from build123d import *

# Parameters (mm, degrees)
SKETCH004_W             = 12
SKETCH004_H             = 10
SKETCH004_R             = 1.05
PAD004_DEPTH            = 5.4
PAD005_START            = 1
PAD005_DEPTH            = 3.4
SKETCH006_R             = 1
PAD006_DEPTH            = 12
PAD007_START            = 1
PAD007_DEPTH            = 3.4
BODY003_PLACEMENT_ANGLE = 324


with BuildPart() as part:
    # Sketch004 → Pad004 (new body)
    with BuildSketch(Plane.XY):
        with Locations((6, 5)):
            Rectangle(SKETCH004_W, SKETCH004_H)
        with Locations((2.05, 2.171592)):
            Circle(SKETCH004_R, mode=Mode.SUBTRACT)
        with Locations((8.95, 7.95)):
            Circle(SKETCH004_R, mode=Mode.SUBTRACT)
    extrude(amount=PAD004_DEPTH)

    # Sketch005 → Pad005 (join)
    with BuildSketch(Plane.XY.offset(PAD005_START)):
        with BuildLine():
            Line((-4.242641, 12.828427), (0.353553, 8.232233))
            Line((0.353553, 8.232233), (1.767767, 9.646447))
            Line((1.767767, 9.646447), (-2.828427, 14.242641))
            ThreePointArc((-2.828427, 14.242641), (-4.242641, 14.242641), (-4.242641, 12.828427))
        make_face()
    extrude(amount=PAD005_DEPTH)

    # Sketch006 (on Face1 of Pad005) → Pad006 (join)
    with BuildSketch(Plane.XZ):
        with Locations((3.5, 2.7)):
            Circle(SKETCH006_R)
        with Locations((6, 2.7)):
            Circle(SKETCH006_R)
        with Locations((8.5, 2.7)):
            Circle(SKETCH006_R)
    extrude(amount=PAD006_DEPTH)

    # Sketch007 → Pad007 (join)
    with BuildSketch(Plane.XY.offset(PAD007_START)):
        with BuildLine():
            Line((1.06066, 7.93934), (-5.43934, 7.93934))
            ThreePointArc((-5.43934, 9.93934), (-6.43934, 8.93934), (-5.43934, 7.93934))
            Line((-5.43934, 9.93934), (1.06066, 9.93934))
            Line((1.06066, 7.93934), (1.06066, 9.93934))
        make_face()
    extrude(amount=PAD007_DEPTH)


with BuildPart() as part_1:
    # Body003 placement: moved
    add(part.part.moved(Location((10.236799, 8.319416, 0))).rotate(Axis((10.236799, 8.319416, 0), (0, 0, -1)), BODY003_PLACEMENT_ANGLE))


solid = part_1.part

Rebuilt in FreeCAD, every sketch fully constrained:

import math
import FreeCAD as App
import Part
import Sketcher
from FreeCAD import Vector
Q = App.Units.Quantity

doc = App.newDocument("Part")
body = doc.addObject("PartDesign::Body", "Body")

sketch1 = body.newObject("Sketcher::SketchObject", "Sketch")
sketch1.AttachmentSupport = (doc.getObject("XY_Plane"), [""])
sketch1.MapMode = "FlatFace"
sketch1.addGeometry([
    Part.LineSegment(Vector(0, 10, 0), Vector(0, 0, 0)),
    Part.LineSegment(Vector(0, 0, 0), Vector(12, 0, 0)),
    Part.LineSegment(Vector(12, 0, 0), Vector(12, 10, 0)),
    Part.LineSegment(Vector(12, 10, 0), Vector(0, 10, 0)),
    Part.Circle(Vector(2.05, 2.171592, 0), Vector(0, 0, 1), 1.05),
    Part.Circle(Vector(8.95, 7.95, 0), Vector(0, 0, 1), 1.05),
], False)
sketch1.addConstraint([
    Sketcher.Constraint("Coincident", 0, 2, 1, 1),
    Sketcher.Constraint("Coincident", 1, 2, 2, 1),
    Sketcher.Constraint("Coincident", 2, 2, 3, 1),
    Sketcher.Constraint("Coincident", 3, 2, 0, 1),
    Sketcher.Constraint("Vertical", 0),
    Sketcher.Constraint("Horizontal", 1),
    Sketcher.Constraint("Vertical", 2),
    Sketcher.Constraint("Horizontal", 3),
    Sketcher.Constraint("Coincident", 0, 2, -1, 1),
    Sketcher.Constraint("Equal", 4, 5),
    Sketcher.Constraint("Diameter", 4, Q("2.1 mm")),
    Sketcher.Constraint("DistanceX", 1, 1, 1, 2, Q("12 mm")),
    Sketcher.Constraint("DistanceY", 0, 2, 0, 1, Q("10 mm")),
    Sketcher.Constraint("DistanceX", 4, 3, 5, 3, Q("6.9 mm")),
    Sketcher.Constraint("DistanceX", -1, 1, 4, 3, Q("2.05 mm")),
    Sketcher.Constraint("DistanceY", -1, 1, 5, 3, Q("7.95 mm")),
    Sketcher.Constraint("DistanceY", -1, 1, 4, 3, Q("2.171592 mm")),
])
pad1 = body.newObject("PartDesign::Pad", "Pad")
pad1.Profile = sketch1
pad1.Length = 5.4

sketch2 = body.newObject("Sketcher::SketchObject", "Sketch001")
sketch2.AttachmentSupport = (doc.getObject("XY_Plane"), [""])
sketch2.MapMode = "FlatFace"
sketch2.AttachmentOffset = App.Placement(Vector(0, 0, 1), App.Rotation())
sketch2.addGeometry([
    Part.LineSegment(Vector(-4.242641, 12.828427, 0), Vector(0.353553, 8.232233, 0)),
    Part.LineSegment(Vector(0.353553, 8.232233, 0), Vector(1.767767, 9.646447, 0)),
    Part.LineSegment(Vector(1.767767, 9.646447, 0), Vector(-2.828427, 14.242641, 0)),
    Part.ArcOfCircle(Part.Circle(Vector(-3.535534, 13.535534, 0), Vector(0, 0, 1), 1), math.radians(45), math.radians(225)),
], False)
sketch2.addConstraint([
    Sketcher.Constraint("Coincident", 0, 2, 1, 1),
    Sketcher.Constraint("Coincident", 1, 2, 2, 1),
    Sketcher.Constraint("Tangent", 2, 2, 3, 1),
    Sketcher.Constraint("Tangent", 3, 2, 0, 1),
    Sketcher.Constraint("Perpendicular", 0, 1),
    Sketcher.Constraint("Perpendicular", 1, 2),
    Sketcher.Constraint("Radius", 3, Q("1 mm")),
    Sketcher.Constraint("Angle", 0, Q("-45 deg")),
    Sketcher.Constraint("Distance", 0, Q("6.5 mm")),
    Sketcher.Constraint("DistanceY", -1, 1, 2, 2, Q("14.242641 mm")),
    Sketcher.Constraint("DistanceX", 3, 2, -1, 1, Q("4.242641 mm")),
])
pad2 = body.newObject("PartDesign::Pad", "Pad001")
pad2.Profile = sketch2
pad2.Length = 3.4

sketch3 = body.newObject("Sketcher::SketchObject", "Sketch002")
sketch3.AttachmentSupport = (doc.getObject("XZ_Plane"), [""])
sketch3.MapMode = "FlatFace"
sketch3.addGeometry([
    Part.Circle(Vector(3.5, 2.7, 0), Vector(0, 0, 1), 1),
    Part.Circle(Vector(6, 2.7, 0), Vector(0, 0, 1), 1),
    Part.Circle(Vector(8.5, 2.7, 0), Vector(0, 0, 1), 1),
], False)
sketch3.addConstraint([
    Sketcher.Constraint("Equal", 0, 1),
    Sketcher.Constraint("Equal", 1, 2),
    Sketcher.Constraint("Horizontal", 0, 3, 1, 3),
    Sketcher.Constraint("Horizontal", 1, 3, 2, 3),
    Sketcher.Constraint("Diameter", 0, Q("2 mm")),
    Sketcher.Constraint("DistanceX", -1, 1, 1, 3, Q("6 mm")),
    Sketcher.Constraint("DistanceX", 0, 3, 2, 3, Q("5 mm")),
    Sketcher.Constraint("DistanceX", -1, 1, 0, 3, Q("3.5 mm")),
    Sketcher.Constraint("DistanceY", -1, 1, 0, 3, Q("2.7 mm")),
])
pad3 = body.newObject("PartDesign::Pad", "Pad002")
pad3.Profile = sketch3
pad3.Length = 12

sketch4 = body.newObject("Sketcher::SketchObject", "Sketch003")
sketch4.AttachmentSupport = (doc.getObject("XY_Plane"), [""])
sketch4.MapMode = "FlatFace"
sketch4.AttachmentOffset = App.Placement(Vector(0, 0, 1), App.Rotation())
sketch4.addGeometry([
    Part.LineSegment(Vector(-5.43934, 7.93934, 0), Vector(1.06066, 7.93934, 0)),
    Part.LineSegment(Vector(1.06066, 7.93934, 0), Vector(1.06066, 9.93934, 0)),
    Part.LineSegment(Vector(1.06066, 9.93934, 0), Vector(-5.43934, 9.93934, 0)),
    Part.ArcOfCircle(Part.Circle(Vector(-5.43934, 8.93934, 0), Vector(0, 0, 1), 1), math.radians(90), math.radians(270)),
], False)
sketch4.addConstraint([
    Sketcher.Constraint("Coincident", 0, 2, 1, 1),
    Sketcher.Constraint("Coincident", 1, 2, 2, 1),
    Sketcher.Constraint("Tangent", 2, 2, 3, 1),
    Sketcher.Constraint("Tangent", 3, 2, 0, 1),
    Sketcher.Constraint("Horizontal", 0),
    Sketcher.Constraint("Vertical", 1),
    Sketcher.Constraint("Horizontal", 2),
    Sketcher.Constraint("Radius", 3, Q("1 mm")),
    Sketcher.Constraint("DistanceX", 0, 1, 0, 2, Q("6.5 mm")),
    Sketcher.Constraint("DistanceX", 3, 3, -1, 1, Q("5.43934 mm")),
    Sketcher.Constraint("DistanceY", -1, 1, 3, 3, Q("8.93934 mm")),
])
pad4 = body.newObject("PartDesign::Pad", "Pad003")
pad4.Profile = sketch4
pad4.Length = 3.4
body2 = doc.addObject("PartDesign::Body", "Body001")
doc.recompute()

body.Placement = App.Placement(Vector(10.236799, 8.319416, 0), App.Rotation(Vector(0, 0, -1), 324))
boolean = body2.newObject("PartDesign::Boolean", "Boolean")
boolean.Type = "Fuse"
boolean.addObjects([body])

doc.recompute()
